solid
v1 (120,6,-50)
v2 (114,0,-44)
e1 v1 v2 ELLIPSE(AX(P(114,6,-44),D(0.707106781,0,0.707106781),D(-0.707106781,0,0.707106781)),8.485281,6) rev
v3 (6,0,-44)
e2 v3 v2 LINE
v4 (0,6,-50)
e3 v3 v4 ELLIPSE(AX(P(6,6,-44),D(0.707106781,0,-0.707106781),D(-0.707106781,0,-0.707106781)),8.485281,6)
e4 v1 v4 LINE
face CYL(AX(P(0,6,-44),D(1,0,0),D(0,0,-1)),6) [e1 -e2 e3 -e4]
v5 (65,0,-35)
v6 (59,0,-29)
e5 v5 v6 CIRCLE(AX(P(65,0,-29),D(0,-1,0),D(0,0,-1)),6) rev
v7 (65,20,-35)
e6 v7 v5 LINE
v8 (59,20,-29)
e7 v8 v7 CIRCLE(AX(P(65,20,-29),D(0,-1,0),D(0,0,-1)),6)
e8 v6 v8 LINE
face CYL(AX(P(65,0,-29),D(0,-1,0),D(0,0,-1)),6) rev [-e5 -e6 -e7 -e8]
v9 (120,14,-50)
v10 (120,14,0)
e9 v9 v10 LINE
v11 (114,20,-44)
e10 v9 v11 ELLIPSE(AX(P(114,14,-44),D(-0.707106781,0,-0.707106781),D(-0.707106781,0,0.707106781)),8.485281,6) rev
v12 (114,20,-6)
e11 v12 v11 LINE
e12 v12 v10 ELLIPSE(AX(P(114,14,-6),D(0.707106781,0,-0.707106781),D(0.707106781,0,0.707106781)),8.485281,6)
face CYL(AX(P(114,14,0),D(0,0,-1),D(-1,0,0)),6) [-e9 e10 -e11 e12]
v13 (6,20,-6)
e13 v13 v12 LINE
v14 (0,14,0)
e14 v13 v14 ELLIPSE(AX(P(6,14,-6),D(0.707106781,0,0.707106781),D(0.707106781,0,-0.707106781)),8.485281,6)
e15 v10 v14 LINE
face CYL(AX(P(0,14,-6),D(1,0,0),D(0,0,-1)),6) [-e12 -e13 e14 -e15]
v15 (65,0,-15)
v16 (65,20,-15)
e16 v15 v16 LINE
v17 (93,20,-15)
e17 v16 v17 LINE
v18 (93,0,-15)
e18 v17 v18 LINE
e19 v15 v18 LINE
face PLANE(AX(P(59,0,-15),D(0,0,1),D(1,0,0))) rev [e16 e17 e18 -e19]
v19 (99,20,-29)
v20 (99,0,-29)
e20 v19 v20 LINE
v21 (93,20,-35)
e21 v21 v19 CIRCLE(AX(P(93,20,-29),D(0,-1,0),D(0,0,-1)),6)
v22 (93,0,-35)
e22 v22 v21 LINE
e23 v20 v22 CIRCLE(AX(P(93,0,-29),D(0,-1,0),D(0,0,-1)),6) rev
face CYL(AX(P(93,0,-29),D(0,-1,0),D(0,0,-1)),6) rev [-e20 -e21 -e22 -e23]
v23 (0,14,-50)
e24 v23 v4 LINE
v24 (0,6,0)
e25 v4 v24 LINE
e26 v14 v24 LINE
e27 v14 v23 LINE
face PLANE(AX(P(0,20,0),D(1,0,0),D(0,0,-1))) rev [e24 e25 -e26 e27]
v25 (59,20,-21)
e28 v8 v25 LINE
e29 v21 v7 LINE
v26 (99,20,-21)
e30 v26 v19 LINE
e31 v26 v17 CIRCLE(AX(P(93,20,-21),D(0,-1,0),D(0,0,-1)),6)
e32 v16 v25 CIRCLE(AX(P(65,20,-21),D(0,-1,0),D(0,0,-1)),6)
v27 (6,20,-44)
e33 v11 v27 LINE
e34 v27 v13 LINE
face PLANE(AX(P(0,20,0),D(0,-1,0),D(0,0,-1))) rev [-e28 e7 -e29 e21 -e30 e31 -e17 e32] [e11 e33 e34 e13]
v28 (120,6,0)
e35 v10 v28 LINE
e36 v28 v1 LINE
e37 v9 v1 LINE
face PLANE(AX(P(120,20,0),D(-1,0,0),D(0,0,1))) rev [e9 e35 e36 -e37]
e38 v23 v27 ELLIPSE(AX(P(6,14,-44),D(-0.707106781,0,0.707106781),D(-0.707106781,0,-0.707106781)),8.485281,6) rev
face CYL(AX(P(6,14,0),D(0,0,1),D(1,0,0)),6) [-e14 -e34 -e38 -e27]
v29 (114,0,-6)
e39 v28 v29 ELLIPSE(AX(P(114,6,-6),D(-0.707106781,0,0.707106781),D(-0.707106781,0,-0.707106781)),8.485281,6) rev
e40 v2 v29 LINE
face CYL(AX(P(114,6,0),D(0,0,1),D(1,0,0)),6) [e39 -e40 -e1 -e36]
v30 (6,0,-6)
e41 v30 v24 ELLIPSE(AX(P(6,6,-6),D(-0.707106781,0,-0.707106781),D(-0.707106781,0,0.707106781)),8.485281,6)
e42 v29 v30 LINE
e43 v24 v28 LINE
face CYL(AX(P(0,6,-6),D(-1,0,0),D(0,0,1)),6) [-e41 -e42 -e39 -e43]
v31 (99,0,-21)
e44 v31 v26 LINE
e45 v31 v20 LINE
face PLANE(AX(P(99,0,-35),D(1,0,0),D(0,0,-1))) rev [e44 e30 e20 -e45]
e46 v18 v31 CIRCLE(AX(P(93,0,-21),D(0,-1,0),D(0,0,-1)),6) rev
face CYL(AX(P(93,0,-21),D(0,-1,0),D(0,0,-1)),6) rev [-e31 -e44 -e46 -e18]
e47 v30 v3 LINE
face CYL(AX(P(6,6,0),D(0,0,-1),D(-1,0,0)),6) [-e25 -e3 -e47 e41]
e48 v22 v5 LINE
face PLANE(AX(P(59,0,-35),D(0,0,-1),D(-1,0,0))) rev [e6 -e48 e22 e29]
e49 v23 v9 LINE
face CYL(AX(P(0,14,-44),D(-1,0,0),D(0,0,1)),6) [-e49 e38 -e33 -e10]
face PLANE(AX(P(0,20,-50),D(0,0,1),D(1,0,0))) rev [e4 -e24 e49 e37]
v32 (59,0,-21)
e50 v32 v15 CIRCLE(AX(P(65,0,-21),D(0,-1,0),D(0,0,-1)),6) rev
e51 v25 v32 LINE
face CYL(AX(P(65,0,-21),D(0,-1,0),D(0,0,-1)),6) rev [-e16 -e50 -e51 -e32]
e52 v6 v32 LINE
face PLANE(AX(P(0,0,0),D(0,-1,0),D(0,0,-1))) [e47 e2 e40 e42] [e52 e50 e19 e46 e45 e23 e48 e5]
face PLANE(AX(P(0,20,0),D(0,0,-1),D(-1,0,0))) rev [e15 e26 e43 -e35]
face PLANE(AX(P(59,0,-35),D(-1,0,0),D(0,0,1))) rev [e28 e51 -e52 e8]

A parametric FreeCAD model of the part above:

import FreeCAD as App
import Part
import Sketcher
from FreeCAD import Vector


def edges_at(feature, points):
    """Names of the edges that pass closest to the given points."""
    edges = feature.Shape.Edges
    near = lambda p: min(range(len(edges)), key=lambda i: edges[i].distToShape(Part.Vertex(*p))[0])
    return sorted({f"Edge{near(p) + 1}" for p in points})

doc = App.newDocument("Part")
params = doc.addObject("Spreadsheet::Sheet", "Params")
for row, (alias, value) in enumerate([
    ("sketch1_width", "120 mm"),
    ("sketch1_height", "50 mm"),
    ("pad1_length", "20 mm"),
    ("fillet_radius", "6 mm"),
    ("sketch2_width", "40 mm"),
    ("sketch2_height", "20 mm"),
    ("fillet2_radius", "6 mm"),
], start=1):
    params.set(f"A{row}", alias)
    params.set(f"B{row}", "=" + value)
    params.setAlias(f"B{row}", alias)

body = doc.addObject("PartDesign::Body", "Body")

# Sketch on XZ plane
sketch1 = body.newObject("Sketcher::SketchObject", "Sketch")
sketch1.AttachmentSupport = (doc.getObject("XZ_Plane"), [""])
sketch1.MapMode = "FlatFace"
sketch1.addGeometry(Part.LineSegment(Vector(0, -50, 0), Vector(0, 0, 0)), False)
sketch1.addGeometry(Part.LineSegment(Vector(0, 0, 0), Vector(120, 0, 0)), False)
sketch1.addGeometry(Part.LineSegment(Vector(120, 0, 0), Vector(120, -50, 0)), False)
sketch1.addGeometry(Part.LineSegment(Vector(120, -50, 0), Vector(0, -50, 0)), False)
sketch1.addConstraint(Sketcher.Constraint("Coincident", 0, 2, 1, 1))
sketch1.addConstraint(Sketcher.Constraint("Coincident", 1, 2, 2, 1))
sketch1.addConstraint(Sketcher.Constraint("Coincident", 2, 2, 3, 1))
sketch1.addConstraint(Sketcher.Constraint("Coincident", 3, 2, 0, 1))
sketch1.addConstraint(Sketcher.Constraint("Vertical", 0))
sketch1.addConstraint(Sketcher.Constraint("Horizontal", 1))
sketch1.addConstraint(Sketcher.Constraint("Vertical", 2))
sketch1.addConstraint(Sketcher.Constraint("Horizontal", 3))
sketch1.addConstraint(Sketcher.Constraint("Coincident", 0, 2, -1, 1))
sketch1.addConstraint(Sketcher.Constraint("DistanceX", 1, 1, 1, 2, 120.0))
sketch1.addConstraint(Sketcher.Constraint("DistanceY", 0, 1, 0, 2, 50.0))
sketch1.setExpression("Constraints[9]", "Params.sketch1_width")
sketch1.setExpression("Constraints[10]", "Params.sketch1_height")
pad1 = body.newObject("PartDesign::Pad", "Pad")
pad1.Profile = sketch1
pad1.setExpression("Length", "Params.pad1_length")
pad1.Reversed = True
doc.recompute()

fillet = body.newObject("PartDesign::Fillet", "Fillet")
fillet.Base = (pad1, edges_at(pad1, [
    (120, 20, -25),
    (60, 20, -50),
    (0, 20, -25),
    (60, 0, -50),
    (120, 0, -25),
    (60, 0, 0),
    (0, 0, -25),
    (60, 20, 0),
]))
fillet.setExpression("Radius", "Params.fillet_radius")

# Sketch on XZ plane
sketch2 = body.newObject("Sketcher::SketchObject", "Sketch001")
sketch2.AttachmentSupport = (doc.getObject("XZ_Plane"), [""])
sketch2.MapMode = "FlatFace"
sketch2.AttachmentOffset = App.Placement(Vector(0, 0, -20), App.Rotation())
sketch2.addGeometry(Part.LineSegment(Vector(59, -35, 0), Vector(59, -15, 0)), False)
sketch2.addGeometry(Part.LineSegment(Vector(59, -15, 0), Vector(99, -15, 0)), False)
sketch2.addGeometry(Part.LineSegment(Vector(99, -15, 0), Vector(99, -35, 0)), False)
sketch2.addGeometry(Part.LineSegment(Vector(99, -35, 0), Vector(59, -35, 0)), False)
sketch2.addConstraint(Sketcher.Constraint("Coincident", 0, 2, 1, 1))
sketch2.addConstraint(Sketcher.Constraint("Coincident", 1, 2, 2, 1))
sketch2.addConstraint(Sketcher.Constraint("Coincident", 2, 2, 3, 1))
sketch2.addConstraint(Sketcher.Constraint("Coincident", 3, 2, 0, 1))
sketch2.addConstraint(Sketcher.Constraint("Vertical", 0))
sketch2.addConstraint(Sketcher.Constraint("Horizontal", 1))
sketch2.addConstraint(Sketcher.Constraint("Vertical", 2))
sketch2.addConstraint(Sketcher.Constraint("Horizontal", 3))
sketch2.addConstraint(Sketcher.Constraint("DistanceX", 1, 1, 1, 2, 40.0))
sketch2.addConstraint(Sketcher.Constraint("DistanceY", 0, 1, 0, 2, 20.0))
sketch2.addConstraint(Sketcher.Constraint("DistanceX", -1, 1, 0, 2, 59.0))
sketch2.addConstraint(Sketcher.Constraint("DistanceY", 0, 2, -1, 1, 15.0))
sketch2.setExpression("Constraints[8]", "Params.sketch2_width")
sketch2.setExpression("Constraints[9]", "Params.sketch2_height")
pocket1 = body.newObject("PartDesign::Pocket", "Pocket")
pocket1.Profile = sketch2
pocket1.Type = "ThroughAll"
pocket1.Reversed = True
doc.recompute()

fillet2 = body.newObject("PartDesign::Fillet", "Fillet001")
fillet2.Base = (pocket1, edges_at(pocket1, [
    (59, 10, -15),
    (59, 10, -35),
    (99, 10, -35),
    (99, 10, -15),
]))
fillet2.setExpression("Radius", "Params.fillet2_radius")

doc.recompute()
